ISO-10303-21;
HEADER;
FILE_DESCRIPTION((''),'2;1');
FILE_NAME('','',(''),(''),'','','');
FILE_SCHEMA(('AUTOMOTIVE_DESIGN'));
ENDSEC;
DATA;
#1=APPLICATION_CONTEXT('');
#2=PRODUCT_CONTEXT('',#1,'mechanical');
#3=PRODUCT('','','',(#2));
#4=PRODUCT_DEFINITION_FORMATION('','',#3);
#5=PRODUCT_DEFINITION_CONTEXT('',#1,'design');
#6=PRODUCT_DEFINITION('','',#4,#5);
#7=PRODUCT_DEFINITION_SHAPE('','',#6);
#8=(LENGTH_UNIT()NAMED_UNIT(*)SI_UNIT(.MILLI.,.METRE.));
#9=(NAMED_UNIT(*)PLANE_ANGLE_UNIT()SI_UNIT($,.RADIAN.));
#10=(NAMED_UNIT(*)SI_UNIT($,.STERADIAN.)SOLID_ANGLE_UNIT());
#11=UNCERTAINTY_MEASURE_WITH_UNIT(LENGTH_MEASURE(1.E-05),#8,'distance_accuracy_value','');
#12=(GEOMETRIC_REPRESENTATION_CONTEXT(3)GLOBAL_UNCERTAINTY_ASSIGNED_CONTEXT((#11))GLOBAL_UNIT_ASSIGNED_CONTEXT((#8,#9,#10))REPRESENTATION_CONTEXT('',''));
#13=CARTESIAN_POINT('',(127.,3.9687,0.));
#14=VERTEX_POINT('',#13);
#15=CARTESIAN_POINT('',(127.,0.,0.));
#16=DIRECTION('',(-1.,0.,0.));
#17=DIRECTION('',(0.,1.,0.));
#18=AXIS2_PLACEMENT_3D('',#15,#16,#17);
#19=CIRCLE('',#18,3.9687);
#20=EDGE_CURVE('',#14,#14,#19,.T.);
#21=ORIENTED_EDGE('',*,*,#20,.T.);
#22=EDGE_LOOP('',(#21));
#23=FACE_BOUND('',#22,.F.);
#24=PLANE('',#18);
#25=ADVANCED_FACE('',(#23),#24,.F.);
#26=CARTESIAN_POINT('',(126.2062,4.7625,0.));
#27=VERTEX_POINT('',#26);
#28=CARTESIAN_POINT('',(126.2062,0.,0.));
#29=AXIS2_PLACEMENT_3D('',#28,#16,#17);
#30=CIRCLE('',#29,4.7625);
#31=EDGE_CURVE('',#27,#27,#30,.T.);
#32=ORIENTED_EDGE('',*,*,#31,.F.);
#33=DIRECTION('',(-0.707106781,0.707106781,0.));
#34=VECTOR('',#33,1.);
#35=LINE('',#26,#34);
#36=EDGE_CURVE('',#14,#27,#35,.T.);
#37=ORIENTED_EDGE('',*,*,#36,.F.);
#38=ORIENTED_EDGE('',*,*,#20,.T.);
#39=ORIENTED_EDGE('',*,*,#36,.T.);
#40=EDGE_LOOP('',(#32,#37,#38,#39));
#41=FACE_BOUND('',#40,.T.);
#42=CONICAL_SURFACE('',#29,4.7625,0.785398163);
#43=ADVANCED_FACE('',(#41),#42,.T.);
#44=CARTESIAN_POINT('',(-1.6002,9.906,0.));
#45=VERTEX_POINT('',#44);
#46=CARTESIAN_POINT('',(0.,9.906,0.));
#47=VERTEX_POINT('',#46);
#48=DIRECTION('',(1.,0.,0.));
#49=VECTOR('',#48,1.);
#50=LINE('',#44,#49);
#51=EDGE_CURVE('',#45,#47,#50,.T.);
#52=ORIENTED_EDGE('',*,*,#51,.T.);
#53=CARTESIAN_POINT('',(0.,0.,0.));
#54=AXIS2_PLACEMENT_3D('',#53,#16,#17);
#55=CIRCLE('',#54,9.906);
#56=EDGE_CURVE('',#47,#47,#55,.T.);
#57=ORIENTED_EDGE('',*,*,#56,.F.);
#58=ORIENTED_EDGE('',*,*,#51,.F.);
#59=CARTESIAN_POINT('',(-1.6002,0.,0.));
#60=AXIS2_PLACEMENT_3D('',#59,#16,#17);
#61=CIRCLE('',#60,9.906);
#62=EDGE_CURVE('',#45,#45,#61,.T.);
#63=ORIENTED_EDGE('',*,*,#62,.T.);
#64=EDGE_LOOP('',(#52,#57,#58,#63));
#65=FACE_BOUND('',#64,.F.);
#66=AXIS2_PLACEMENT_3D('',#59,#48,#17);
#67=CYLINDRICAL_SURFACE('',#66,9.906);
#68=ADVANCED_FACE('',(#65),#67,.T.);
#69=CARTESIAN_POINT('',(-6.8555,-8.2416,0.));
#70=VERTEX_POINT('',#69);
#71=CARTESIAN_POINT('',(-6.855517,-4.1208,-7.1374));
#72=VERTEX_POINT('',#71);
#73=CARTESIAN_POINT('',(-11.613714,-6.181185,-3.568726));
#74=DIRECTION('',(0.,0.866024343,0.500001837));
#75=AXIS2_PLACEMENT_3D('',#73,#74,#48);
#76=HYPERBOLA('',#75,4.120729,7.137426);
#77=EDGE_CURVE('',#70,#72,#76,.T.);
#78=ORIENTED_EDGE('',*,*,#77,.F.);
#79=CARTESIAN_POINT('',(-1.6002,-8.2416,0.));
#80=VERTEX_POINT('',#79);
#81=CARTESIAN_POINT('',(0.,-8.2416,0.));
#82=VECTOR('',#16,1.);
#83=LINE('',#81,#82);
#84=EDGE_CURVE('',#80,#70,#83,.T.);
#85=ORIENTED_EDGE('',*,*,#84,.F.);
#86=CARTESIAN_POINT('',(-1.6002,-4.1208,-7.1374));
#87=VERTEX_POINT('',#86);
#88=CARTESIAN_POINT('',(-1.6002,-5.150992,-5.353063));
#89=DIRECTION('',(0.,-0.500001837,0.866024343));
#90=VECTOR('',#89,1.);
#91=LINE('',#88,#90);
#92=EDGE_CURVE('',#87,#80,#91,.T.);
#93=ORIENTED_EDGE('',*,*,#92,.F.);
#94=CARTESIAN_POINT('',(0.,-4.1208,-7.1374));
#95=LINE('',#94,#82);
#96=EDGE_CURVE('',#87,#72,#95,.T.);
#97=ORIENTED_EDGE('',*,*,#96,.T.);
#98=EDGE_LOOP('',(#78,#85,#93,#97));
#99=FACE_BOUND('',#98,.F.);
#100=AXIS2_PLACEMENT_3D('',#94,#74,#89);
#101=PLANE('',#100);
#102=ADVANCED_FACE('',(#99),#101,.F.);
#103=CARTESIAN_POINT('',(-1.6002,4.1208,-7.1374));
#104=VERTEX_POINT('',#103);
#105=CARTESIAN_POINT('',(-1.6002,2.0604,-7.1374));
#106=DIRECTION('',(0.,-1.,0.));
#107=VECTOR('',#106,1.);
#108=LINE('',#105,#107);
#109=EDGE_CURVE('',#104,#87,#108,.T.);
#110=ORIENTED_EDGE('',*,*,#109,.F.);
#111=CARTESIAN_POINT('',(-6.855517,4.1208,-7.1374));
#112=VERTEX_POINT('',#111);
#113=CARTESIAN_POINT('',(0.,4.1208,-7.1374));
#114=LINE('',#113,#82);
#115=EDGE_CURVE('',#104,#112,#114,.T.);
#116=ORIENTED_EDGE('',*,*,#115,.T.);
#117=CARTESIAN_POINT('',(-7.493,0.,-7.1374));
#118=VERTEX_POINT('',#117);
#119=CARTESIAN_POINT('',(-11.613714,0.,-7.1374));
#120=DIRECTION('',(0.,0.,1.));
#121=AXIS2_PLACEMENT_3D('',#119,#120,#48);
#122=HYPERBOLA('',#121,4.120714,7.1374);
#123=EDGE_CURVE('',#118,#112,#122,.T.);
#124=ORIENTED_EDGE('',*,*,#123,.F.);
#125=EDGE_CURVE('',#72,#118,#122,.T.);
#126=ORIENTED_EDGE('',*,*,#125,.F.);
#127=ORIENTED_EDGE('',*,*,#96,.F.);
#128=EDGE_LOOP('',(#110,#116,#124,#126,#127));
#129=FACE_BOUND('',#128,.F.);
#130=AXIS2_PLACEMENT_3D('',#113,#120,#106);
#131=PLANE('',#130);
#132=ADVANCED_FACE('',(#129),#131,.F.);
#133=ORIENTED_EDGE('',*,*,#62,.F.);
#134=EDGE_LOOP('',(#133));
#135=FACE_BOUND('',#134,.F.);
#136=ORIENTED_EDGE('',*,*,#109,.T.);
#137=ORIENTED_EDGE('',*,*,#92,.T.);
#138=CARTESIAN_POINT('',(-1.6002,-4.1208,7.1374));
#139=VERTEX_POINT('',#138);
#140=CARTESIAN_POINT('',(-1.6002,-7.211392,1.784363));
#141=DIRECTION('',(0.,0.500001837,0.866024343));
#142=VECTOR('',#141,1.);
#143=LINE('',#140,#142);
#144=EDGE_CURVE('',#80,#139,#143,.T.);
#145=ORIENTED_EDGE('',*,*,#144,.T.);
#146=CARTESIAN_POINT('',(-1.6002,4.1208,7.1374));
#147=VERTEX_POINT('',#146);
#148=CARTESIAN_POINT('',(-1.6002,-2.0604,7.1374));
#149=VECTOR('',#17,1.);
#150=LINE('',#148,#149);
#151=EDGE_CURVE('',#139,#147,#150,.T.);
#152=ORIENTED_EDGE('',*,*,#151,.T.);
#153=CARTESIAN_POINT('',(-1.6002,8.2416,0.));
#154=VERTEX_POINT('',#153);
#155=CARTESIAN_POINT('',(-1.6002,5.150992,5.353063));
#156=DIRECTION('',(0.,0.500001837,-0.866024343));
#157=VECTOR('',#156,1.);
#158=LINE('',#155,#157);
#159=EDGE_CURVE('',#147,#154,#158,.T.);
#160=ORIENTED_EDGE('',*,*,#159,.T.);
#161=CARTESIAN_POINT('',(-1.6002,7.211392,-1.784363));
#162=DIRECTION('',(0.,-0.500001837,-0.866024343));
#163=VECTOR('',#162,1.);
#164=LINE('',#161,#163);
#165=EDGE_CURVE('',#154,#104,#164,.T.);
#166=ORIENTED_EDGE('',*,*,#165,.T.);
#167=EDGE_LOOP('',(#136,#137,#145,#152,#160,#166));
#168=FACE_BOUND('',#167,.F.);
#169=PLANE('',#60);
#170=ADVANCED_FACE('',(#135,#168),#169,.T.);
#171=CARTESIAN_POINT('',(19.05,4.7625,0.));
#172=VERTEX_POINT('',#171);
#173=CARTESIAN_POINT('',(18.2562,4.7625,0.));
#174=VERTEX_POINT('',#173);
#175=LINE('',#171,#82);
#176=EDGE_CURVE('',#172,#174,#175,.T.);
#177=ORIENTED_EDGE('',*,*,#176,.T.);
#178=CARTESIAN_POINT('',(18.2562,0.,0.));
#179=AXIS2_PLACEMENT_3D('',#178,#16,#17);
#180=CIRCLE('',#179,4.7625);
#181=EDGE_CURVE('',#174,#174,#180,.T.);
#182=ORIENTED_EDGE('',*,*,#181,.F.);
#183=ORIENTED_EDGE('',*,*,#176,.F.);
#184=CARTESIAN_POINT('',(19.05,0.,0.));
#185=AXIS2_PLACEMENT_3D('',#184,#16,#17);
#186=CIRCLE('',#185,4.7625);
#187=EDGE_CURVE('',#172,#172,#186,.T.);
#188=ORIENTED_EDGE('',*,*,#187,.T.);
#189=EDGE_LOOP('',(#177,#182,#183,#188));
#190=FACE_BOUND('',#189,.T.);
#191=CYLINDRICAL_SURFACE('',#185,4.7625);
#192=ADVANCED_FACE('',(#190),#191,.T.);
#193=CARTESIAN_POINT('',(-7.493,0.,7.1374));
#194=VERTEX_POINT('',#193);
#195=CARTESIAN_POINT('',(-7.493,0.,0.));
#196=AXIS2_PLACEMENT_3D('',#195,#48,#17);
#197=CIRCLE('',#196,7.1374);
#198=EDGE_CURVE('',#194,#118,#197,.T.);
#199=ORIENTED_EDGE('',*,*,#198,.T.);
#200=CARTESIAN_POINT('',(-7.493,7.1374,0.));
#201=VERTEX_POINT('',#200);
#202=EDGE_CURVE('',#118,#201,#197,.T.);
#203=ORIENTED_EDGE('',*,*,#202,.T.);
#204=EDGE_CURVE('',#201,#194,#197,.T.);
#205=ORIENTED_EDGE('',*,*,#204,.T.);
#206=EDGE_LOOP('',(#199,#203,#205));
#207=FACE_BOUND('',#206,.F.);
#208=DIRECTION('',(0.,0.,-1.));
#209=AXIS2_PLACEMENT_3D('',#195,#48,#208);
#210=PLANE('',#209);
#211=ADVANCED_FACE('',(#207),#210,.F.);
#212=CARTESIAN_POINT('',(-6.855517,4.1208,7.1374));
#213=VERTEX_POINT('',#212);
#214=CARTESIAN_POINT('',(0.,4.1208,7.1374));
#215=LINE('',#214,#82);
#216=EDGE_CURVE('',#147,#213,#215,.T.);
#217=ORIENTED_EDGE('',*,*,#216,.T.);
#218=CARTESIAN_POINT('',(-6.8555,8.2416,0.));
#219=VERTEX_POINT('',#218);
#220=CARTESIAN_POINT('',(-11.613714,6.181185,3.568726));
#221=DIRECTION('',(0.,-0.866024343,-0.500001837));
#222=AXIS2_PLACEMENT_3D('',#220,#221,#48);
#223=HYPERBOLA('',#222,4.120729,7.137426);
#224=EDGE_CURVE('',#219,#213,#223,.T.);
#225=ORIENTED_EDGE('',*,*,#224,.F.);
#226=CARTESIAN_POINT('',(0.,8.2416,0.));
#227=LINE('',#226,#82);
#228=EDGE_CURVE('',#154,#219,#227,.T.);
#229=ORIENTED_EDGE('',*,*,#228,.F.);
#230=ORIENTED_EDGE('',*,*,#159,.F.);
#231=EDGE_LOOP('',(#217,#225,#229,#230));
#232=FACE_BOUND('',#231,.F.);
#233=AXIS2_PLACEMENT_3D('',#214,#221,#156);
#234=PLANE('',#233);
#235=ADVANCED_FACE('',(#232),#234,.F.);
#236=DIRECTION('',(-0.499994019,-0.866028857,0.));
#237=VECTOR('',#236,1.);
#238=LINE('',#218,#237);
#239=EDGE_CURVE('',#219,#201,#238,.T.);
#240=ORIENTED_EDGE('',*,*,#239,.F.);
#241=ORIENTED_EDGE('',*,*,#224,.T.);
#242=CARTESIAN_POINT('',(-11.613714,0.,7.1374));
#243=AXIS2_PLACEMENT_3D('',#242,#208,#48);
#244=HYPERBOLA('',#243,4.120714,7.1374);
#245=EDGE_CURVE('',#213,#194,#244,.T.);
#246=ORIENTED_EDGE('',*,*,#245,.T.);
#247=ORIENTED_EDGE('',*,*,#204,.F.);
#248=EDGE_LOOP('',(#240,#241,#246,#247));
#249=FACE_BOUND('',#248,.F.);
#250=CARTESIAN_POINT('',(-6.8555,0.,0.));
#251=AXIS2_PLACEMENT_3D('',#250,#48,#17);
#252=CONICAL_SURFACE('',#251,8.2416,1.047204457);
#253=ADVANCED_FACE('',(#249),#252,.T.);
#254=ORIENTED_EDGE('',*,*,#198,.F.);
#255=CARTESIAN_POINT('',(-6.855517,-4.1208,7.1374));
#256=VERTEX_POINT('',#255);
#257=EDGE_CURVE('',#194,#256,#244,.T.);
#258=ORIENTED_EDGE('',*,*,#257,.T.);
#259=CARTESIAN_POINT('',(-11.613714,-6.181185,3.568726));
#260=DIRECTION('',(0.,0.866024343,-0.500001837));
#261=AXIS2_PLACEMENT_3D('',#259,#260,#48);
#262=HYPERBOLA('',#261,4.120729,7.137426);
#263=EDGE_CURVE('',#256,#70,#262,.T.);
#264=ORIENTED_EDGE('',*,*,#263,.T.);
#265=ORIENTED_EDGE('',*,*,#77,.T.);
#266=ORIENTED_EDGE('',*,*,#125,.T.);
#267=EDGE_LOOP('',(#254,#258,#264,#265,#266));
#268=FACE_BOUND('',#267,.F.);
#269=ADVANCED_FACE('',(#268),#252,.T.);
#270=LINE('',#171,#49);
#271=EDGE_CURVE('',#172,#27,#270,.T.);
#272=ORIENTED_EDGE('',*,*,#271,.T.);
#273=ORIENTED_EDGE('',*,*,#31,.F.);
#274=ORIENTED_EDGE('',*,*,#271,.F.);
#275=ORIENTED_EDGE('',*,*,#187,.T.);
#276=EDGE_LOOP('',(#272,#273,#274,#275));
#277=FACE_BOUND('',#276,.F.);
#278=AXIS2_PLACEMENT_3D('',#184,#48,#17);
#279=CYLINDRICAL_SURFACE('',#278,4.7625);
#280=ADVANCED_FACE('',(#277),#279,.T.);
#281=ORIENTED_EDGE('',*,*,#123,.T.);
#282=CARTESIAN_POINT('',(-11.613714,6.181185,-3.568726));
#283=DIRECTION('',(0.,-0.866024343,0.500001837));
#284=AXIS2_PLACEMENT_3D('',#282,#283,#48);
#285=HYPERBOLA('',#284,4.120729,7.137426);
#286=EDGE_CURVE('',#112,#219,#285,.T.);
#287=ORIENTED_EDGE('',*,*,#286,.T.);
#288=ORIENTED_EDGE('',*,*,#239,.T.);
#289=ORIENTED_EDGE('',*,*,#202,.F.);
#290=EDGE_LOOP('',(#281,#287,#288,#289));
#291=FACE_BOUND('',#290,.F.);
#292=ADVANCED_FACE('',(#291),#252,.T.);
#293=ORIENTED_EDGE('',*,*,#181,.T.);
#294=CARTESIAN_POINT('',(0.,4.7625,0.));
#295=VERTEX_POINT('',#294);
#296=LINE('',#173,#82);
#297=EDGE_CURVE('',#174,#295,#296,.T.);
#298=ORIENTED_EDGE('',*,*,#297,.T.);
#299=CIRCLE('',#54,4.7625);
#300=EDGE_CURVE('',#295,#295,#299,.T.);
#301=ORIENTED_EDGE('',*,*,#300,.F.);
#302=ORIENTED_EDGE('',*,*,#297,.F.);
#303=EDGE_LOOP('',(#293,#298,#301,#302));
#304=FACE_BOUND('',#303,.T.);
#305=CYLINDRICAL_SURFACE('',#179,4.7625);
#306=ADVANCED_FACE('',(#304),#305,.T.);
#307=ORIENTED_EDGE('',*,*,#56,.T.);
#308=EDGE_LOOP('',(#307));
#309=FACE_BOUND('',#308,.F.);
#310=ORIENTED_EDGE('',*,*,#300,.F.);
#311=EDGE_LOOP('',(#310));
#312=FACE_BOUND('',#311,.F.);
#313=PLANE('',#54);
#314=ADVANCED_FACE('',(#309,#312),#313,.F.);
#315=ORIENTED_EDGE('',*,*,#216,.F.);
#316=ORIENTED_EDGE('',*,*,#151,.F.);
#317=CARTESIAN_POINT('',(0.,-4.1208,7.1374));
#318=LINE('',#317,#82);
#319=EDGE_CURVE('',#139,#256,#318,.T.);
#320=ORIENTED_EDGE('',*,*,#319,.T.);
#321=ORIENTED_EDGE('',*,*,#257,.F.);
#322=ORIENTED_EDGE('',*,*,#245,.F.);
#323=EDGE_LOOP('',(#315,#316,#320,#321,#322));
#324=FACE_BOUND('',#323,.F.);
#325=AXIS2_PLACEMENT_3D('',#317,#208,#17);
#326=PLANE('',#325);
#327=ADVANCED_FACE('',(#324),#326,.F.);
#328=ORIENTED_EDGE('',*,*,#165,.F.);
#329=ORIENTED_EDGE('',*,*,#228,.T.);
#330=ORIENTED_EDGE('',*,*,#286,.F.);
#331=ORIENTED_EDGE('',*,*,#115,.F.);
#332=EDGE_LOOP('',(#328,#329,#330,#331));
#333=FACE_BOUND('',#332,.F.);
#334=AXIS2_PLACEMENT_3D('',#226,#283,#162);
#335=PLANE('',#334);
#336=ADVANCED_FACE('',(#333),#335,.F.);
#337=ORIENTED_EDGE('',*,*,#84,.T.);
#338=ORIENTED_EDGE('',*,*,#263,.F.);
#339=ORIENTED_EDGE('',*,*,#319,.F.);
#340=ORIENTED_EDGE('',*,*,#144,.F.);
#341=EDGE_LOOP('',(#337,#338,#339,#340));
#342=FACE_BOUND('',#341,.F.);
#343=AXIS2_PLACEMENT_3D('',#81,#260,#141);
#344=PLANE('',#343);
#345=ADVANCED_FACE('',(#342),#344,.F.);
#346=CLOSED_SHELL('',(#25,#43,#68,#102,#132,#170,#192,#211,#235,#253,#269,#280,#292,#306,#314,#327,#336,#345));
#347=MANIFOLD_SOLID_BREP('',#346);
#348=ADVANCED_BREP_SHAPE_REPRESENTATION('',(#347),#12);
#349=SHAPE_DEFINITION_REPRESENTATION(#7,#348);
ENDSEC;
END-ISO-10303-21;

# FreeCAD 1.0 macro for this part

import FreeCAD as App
import Part
import Sketcher
from FreeCAD import Vector
Q = App.Units.Quantity


def edges_at(feature, points):
    """Names of the edges that pass closest to the given points."""
    edges = feature.Shape.Edges
    near = lambda p: min(range(len(edges)), key=lambda i: edges[i].distToShape(Part.Vertex(*p))[0])
    return sorted({f"Edge{near(p) + 1}" for p in points})

doc = App.newDocument("Part")
body = doc.addObject("PartDesign::Body", "Body")

# Sketch on XY plane
sketch1 = doc.addObject("Sketcher::SketchObject", "Sketch")
body.addObject(sketch1)
sketch1.AttachmentSupport = (doc.XY_Plane, [""])
sketch1.MapMode = "FlatFace"
sketch1.addGeometry([
    Part.LineSegment(Vector(0, 4.8, 0), Vector(0, 9.9, 0)),  # 0
    Part.LineSegment(Vector(0, 9.9, 0), Vector(-1.6, 9.9, 0)),  # 1
    Part.LineSegment(Vector(-1.6, 9.9, 0), Vector(-1.6, 0, 0)),  # 2
    Part.LineSegment(Vector(-1.6, 0, 0), Vector(127, 0, 0)),  # 3
    Part.LineSegment(Vector(127, 0, 0), Vector(127, 4.8, 0)),  # 4
    Part.LineSegment(Vector(127, 4.8, 0), Vector(0, 4.8, 0)),  # 5
], False)
sketch1.addConstraint([
    Sketcher.Constraint("Coincident", 0, 2, 1, 1),
    Sketcher.Constraint("Coincident", 1, 2, 2, 1),
    Sketcher.Constraint("Coincident", 2, 2, 3, 1),
    Sketcher.Constraint("Coincident", 3, 2, 4, 1),
    Sketcher.Constraint("Coincident", 4, 2, 5, 1),
    Sketcher.Constraint("Coincident", 5, 2, 0, 1),
    Sketcher.Constraint("Vertical", 0),
    Sketcher.Constraint("Horizontal", 1),
    Sketcher.Constraint("Vertical", 2),
    Sketcher.Constraint("Horizontal", 3),
    Sketcher.Constraint("Vertical", 4),
    Sketcher.Constraint("Horizontal", 5),
    Sketcher.Constraint("PointOnObject", 0, 2, -2),
    Sketcher.Constraint("PointOnObject", 2, 2, -1),
    Sketcher.Constraint("DistanceX", 5, 2, 5, 1, Q("5 in")),
    Sketcher.Constraint("DistanceX", 1, 2, 1, 1, Q("0.063 in")),
    Sketcher.Constraint("DistanceY", 2, 2, 2, 1, Q("0.39 in")),
    Sketcher.Constraint("DistanceY", 4, 1, 4, 2, Q("0.1875 in")),
])
revolution = doc.addObject("PartDesign::Revolution", "Revolution")
body.addObject(revolution)
revolution.Profile = sketch1
revolution.ReferenceAxis = (sketch1, ["H_Axis"])
revolution.Angle = 360

# Sketch on YZ plane
sketch2 = doc.addObject("Sketcher::SketchObject", "Sketch001")
body.addObject(sketch2)
sketch2.AttachmentSupport = (doc.YZ_Plane, [""])
sketch2.MapMode = "FlatFace"
sketch2.addGeometry([
    Part.LineSegment(Vector(4, -7, 0), Vector(8, 0, 0)),  # 0
    Part.LineSegment(Vector(8, 0, 0), Vector(4, 7, 0)),  # 1
    Part.LineSegment(Vector(4, 7, 0), Vector(-4, 7, 0)),  # 2
    Part.LineSegment(Vector(-4, 7, 0), Vector(-8, 0, 0)),  # 3
    Part.LineSegment(Vector(-8, 0, 0), Vector(-4, -7, 0)),  # 4
    Part.LineSegment(Vector(-4, -7, 0), Vector(4, -7, 0)),  # 5
], False)
sketch2.addConstraint([
    Sketcher.Constraint("Coincident", 0, 2, 1, 1),
    Sketcher.Constraint("Coincident", 1, 2, 2, 1),
    Sketcher.Constraint("Coincident", 2, 2, 3, 1),
    Sketcher.Constraint("Coincident", 3, 2, 4, 1),
    Sketcher.Constraint("Coincident", 4, 2, 5, 1),
    Sketcher.Constraint("Coincident", 5, 2, 0, 1),
    Sketcher.Constraint("Horizontal", 2),
    Sketcher.Constraint("Horizontal", 5),
    Sketcher.Constraint("Symmetric", 0, 2, 3, 2, -1, 1),
    Sketcher.Constraint("Symmetric", 1, 2, 4, 2, -1, 1),
    Sketcher.Constraint("PointOnObject", 0, 2, -1),
    Sketcher.Constraint("Parallel", 0, 3),
    Sketcher.Constraint("Vertical", 2, 2, 4, 2),
    Sketcher.Constraint("Angle", 0, Q("59.9999 deg")),
    Sketcher.Constraint("DistanceY", 4, 2, 2, 2, Q("0.562 in")),
    Sketcher.Constraint("DistanceX", 2, 2, 2, 1, Q("8.2416 mm")),
])
pad1 = doc.addObject("PartDesign::Pad", "Pad")
body.addObject(pad1)
pad1.Profile = sketch2
pad1.Length = Q("0.295 in")
pad1.Reversed = True

# Sketch on XY plane
sketch3 = doc.addObject("Sketcher::SketchObject", "Sketch002")
body.addObject(sketch3)
sketch3.AttachmentSupport = (doc.XY_Plane, [""])
sketch3.MapMode = "FlatFace"
sketch3.addGeometry([
    Part.LineSegment(Vector(-7.5, 8.2, 0), Vector(-7.5, 7.1, 0)),
    Part.LineSegment(Vector(-7.5, 7.1, 0), Vector(-6.9, 8.2, 0)),
    Part.LineSegment(Vector(-6.9, 8.2, 0), Vector(-7.5, 8.2, 0)),
], False)
sketch3.addConstraint([
    Sketcher.Constraint("Coincident", 0, 2, 1, 1),
    Sketcher.Constraint("Coincident", 1, 2, 2, 1),
    Sketcher.Constraint("Coincident", 2, 2, 0, 1),
    Sketcher.Constraint("Vertical", 0),
    Sketcher.Constraint("Horizontal", 2),
    Sketcher.Constraint("Angle", 1, Q("60.0004 deg")),
    Sketcher.Constraint("DistanceX", 2, 2, 2, 1, Q("0.0251 in")),
    Sketcher.Constraint("DistanceX", 0, 2, -1, 1, Q("0.295 in")),
    Sketcher.Constraint("DistanceY", -1, 1, 0, 2, Q("0.281 in")),
])
groove = doc.addObject("PartDesign::Groove", "Groove")
body.addObject(groove)
groove.Profile = sketch3
groove.ReferenceAxis = (sketch3, ["H_Axis"])
groove.Angle = 360
doc.recompute()

chamfer = doc.addObject("PartDesign::Chamfer", "Chamfer")
body.addObject(chamfer)
chamfer.Base = (groove, edges_at(groove, [(127, -4.763, 0)]))
chamfer.ChamferType = "Two distances"
chamfer.Size = Q("0.031252 in")
chamfer.Size2 = Q("0.031252 in")

doc.recompute()
